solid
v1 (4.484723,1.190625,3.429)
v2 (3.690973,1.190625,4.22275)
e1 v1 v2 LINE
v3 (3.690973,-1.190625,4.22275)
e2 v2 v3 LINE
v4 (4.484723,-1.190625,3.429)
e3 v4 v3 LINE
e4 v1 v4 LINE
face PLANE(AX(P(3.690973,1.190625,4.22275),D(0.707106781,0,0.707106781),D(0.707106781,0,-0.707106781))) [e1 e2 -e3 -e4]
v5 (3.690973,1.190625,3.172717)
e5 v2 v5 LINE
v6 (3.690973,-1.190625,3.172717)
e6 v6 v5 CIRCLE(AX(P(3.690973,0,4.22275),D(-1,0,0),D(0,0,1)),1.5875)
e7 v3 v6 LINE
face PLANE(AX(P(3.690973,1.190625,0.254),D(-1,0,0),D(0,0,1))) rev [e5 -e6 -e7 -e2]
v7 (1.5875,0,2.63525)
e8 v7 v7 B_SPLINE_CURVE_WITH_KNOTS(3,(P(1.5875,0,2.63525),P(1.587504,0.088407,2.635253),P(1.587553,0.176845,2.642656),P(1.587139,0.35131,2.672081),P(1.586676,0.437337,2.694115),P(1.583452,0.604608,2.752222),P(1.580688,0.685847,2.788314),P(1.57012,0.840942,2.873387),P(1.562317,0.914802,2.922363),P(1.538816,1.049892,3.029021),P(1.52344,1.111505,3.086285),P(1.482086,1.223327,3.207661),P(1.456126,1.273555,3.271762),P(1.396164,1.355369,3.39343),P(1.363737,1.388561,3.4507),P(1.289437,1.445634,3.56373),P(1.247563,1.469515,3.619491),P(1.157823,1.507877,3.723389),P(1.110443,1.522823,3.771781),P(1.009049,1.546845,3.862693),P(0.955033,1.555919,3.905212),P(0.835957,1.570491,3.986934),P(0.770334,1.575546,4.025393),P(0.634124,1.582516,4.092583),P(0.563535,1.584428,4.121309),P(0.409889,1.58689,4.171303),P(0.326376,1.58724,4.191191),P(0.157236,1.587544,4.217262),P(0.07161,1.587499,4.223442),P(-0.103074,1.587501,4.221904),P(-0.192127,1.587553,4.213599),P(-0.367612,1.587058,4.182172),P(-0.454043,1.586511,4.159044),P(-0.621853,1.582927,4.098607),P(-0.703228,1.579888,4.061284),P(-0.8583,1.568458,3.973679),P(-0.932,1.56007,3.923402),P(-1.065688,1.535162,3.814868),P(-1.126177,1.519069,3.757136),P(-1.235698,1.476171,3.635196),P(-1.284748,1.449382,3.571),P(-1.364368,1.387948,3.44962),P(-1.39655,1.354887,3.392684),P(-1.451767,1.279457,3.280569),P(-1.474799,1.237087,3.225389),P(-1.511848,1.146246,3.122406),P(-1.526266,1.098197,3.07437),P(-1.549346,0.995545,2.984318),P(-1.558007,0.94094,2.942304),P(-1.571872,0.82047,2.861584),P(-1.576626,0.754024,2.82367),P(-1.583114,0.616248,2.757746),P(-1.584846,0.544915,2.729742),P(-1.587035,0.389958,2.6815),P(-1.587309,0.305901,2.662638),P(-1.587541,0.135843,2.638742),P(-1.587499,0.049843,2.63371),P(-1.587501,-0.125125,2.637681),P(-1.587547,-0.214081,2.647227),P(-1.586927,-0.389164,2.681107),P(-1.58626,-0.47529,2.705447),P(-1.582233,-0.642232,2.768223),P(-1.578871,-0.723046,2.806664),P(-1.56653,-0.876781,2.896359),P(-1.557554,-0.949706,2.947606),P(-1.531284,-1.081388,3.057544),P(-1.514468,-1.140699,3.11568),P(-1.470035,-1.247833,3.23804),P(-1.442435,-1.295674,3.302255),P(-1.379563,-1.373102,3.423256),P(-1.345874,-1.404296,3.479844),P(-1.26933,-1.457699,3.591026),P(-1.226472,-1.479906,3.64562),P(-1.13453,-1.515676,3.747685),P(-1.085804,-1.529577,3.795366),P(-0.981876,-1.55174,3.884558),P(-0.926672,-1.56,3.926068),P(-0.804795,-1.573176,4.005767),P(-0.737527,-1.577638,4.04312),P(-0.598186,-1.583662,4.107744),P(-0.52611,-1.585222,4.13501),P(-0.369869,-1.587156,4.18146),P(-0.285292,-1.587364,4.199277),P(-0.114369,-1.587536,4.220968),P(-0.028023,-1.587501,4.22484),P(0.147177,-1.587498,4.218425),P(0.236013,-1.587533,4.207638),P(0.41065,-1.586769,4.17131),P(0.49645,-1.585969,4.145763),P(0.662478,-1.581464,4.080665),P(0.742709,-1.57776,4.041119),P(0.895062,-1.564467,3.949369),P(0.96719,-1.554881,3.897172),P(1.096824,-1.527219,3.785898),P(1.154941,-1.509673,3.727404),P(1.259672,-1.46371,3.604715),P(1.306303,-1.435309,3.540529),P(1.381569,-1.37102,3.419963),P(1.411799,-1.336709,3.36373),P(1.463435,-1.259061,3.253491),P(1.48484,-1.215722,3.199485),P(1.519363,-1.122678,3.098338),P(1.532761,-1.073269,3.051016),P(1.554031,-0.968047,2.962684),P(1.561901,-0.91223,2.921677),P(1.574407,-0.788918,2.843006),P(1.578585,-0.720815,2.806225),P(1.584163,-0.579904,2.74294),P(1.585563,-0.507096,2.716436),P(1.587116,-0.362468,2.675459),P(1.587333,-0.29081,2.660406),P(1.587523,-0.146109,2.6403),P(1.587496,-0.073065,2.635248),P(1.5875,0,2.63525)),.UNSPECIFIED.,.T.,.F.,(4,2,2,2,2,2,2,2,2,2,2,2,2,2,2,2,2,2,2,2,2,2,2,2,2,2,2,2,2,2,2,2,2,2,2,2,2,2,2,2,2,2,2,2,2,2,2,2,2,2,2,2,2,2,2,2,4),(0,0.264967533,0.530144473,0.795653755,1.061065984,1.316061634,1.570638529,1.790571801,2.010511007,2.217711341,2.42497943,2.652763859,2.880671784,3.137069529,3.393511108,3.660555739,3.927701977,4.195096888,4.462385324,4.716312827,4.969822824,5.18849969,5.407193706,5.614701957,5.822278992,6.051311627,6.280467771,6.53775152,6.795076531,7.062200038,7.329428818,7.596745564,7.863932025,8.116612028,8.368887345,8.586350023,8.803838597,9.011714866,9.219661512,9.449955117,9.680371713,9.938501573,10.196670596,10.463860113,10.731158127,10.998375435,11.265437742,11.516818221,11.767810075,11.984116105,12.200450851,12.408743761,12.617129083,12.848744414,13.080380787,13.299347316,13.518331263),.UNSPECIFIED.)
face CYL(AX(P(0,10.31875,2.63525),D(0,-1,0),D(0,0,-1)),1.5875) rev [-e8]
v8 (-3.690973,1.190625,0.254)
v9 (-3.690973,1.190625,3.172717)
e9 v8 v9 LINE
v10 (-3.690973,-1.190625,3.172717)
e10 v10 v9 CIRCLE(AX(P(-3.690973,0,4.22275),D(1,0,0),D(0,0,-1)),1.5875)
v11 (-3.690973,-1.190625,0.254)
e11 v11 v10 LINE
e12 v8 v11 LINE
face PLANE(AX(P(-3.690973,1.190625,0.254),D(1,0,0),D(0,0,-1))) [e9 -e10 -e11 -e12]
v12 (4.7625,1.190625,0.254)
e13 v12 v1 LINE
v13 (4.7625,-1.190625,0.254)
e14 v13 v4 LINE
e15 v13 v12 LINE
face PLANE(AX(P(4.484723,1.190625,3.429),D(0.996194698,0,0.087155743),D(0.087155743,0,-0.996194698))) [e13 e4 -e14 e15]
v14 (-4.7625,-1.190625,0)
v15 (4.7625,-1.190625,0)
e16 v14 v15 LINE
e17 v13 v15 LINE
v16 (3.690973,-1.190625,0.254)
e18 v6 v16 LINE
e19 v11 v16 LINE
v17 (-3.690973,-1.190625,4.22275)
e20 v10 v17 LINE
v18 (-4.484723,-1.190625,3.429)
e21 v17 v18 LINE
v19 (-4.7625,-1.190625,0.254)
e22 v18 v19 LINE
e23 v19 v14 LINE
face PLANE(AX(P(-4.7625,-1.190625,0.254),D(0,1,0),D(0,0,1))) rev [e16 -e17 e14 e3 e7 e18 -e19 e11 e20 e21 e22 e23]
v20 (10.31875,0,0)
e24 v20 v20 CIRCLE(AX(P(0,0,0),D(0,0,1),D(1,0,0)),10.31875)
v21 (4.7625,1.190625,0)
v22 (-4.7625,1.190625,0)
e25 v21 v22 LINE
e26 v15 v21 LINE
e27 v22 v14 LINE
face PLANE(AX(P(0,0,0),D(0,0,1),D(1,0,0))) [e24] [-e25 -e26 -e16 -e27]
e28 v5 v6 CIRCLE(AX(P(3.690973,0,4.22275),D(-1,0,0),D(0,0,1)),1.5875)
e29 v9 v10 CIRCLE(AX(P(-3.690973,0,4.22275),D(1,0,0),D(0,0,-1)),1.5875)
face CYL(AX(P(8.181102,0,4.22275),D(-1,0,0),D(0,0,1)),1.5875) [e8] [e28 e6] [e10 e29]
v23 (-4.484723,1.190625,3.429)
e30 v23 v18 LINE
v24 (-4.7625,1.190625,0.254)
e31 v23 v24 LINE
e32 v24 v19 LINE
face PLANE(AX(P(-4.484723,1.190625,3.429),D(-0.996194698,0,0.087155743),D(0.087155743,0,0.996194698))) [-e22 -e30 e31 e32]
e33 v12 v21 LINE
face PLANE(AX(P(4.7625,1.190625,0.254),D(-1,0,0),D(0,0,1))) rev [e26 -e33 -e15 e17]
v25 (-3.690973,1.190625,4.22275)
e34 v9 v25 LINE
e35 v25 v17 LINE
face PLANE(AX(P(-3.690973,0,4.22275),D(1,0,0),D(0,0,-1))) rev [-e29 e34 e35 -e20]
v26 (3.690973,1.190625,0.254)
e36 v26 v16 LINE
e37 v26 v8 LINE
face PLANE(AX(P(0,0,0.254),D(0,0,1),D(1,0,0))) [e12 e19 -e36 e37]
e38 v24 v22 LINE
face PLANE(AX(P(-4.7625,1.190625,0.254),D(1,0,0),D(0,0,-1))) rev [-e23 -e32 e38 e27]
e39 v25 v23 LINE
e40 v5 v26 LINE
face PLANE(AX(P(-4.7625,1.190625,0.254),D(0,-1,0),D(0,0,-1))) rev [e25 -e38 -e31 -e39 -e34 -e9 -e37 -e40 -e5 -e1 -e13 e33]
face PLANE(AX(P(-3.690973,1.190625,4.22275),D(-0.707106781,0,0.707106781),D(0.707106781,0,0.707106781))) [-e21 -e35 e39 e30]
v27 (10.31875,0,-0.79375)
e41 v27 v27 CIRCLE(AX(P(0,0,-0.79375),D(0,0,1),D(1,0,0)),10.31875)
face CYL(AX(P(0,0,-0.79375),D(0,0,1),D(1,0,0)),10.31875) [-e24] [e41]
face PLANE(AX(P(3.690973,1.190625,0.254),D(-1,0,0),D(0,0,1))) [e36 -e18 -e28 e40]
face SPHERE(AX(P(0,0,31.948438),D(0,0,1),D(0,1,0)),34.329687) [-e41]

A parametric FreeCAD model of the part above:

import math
import FreeCAD as App
import Part
import Sketcher
Q = App.Units.Quantity


def add_polygon(sketch, points):
    """Adds a closed chain of lines whose ends are joined by coincident constraints."""
    first, n = sketch.GeometryCount, len(points)
    for a, b in zip(points, points[1:] + points[:1]):
        sketch.addGeometry(Part.LineSegment(App.Vector(*a, 0), App.Vector(*b, 0)), False)
    for i in range(n):
        sketch.addConstraint(Sketcher.Constraint("Coincident", first + i, 2, first + (i + 1) % n, 1))

doc = App.newDocument("Part")
body = doc.addObject("PartDesign::Body", "Body")

sketch1 = body.newObject("Sketcher::SketchObject", "Sketch")
sketch1.AttachmentSupport = (doc.getObject("XY_Plane"), [""])
sketch1.MapMode = "FlatFace"
sketch1.addGeometry(Part.Circle(App.Vector(0, 0, 0), App.Vector(0, 0, 1), 10.31875), False)
sketch1.addConstraint(Sketcher.Constraint("Coincident", 0, 3, -1, 1))
sketch1.addConstraint(Sketcher.Constraint("Diameter", 0, Q("0.8125 in")))
pad1 = body.newObject("PartDesign::Pad", "Pad")
pad1.Profile = sketch1
pad1.Length = Q("0.03125 in")
pad1.Reversed = True

sketch2 = body.newObject("Sketcher::SketchObject", "Sketch001")
sketch2.AttachmentSupport = (doc.getObject("YZ_Plane"), [""])
sketch2.MapMode = "FlatFace"
sketch2.addGeometry(Part.LineSegment(App.Vector(10.31875, -0.79375, 0), App.Vector(0, -0.79375, 0)), False)
sketch2.addGeometry(Part.LineSegment(App.Vector(0, -0.79375, 0), App.Vector(0, -2.38125, 0)), False)
sketch2.addGeometry(Part.ArcOfCircle(Part.Circle(App.Vector(0, 31.948438, 0), App.Vector(0, 0, 1), 34.329688), math.radians(-90), math.radians(-72.507675)), False)
sketch2.addConstraint(Sketcher.Constraint("Coincident", 0, 2, 1, 1))
sketch2.addConstraint(Sketcher.Constraint("Coincident", 1, 2, 2, 1))
sketch2.addConstraint(Sketcher.Constraint("Coincident", 2, 2, 0, 1))
sketch2.addConstraint(Sketcher.Constraint("Horizontal", 0))
sketch2.addConstraint(Sketcher.Constraint("Vertical", 1))
sketch2.addConstraint(Sketcher.Constraint("PointOnObject", 2, 3, -2))
sketch2.addConstraint(Sketcher.Constraint("PointOnObject", 0, 2, -2))
sketch2.addConstraint(Sketcher.Constraint("DistanceX", 0, 2, 0, 1, Q("0.40625 in")))
sketch2.addConstraint(Sketcher.Constraint("DistanceY", 1, 2, 1, 1, Q("0.0625 in")))
sketch2.addConstraint(Sketcher.Constraint("DistanceY", 0, 2, -1, 1, Q("0.03125 in")))
revolution = body.newObject("PartDesign::Revolution", "Revolution")
revolution.Profile = sketch2
revolution.ReferenceAxis = (sketch2, ["V_Axis"])
revolution.Angle = 360

sketch3 = body.newObject("Sketcher::SketchObject", "Sketch002")
sketch3.AttachmentSupport = (doc.getObject("XY_Plane"), [""])
sketch3.MapMode = "FlatFace"
add_polygon(sketch3, [(-4.7625, 1.190625), (-4.7625, -1.190625), (4.7625, -1.190625), (4.7625, 1.190625)])
sketch3.addConstraint(Sketcher.Constraint("Vertical", 0))
sketch3.addConstraint(Sketcher.Constraint("Horizontal", 1))
sketch3.addConstraint(Sketcher.Constraint("Vertical", 2))
sketch3.addConstraint(Sketcher.Constraint("Horizontal", 3))
sketch3.addConstraint(Sketcher.Constraint("Symmetric", 0, 2, 2, 2, -1, 1))
sketch3.addConstraint(Sketcher.Constraint("DistanceX", 1, 1, 1, 2, Q("0.375 in")))
sketch3.addConstraint(Sketcher.Constraint("DistanceY", 0, 2, 0, 1, Q("0.09375 in")))
pad2 = body.newObject("PartDesign::Pad", "Pad001")
pad2.Profile = sketch3
pad2.Length = Q("0.01 in")

sketch4 = body.newObject("Sketcher::SketchObject", "Sketch003")
sketch4.AttachmentSupport = (doc.getObject("XZ_Plane"), [""])
sketch4.MapMode = "FlatFace"
sketch4.AttachmentOffset = App.Placement(App.Vector(0, 0, 0.046875 * 25.4), App.Rotation())
add_polygon(sketch4, [(-4.7625, 0.254), (-3.690973, 0.254), (-3.690973, 4.22275), (-4.484723, 3.429)])
add_polygon(sketch4, [(3.690973, 0.254), (4.7625, 0.254), (4.484723, 3.429), (3.690973, 4.22275)])
sketch4.addConstraint(Sketcher.Constraint("Horizontal", 0))
sketch4.addConstraint(Sketcher.Constraint("Vertical", 1))
sketch4.addConstraint(Sketcher.Constraint("Horizontal", 4))
sketch4.addConstraint(Sketcher.Constraint("Vertical", 7))
sketch4.addConstraint(Sketcher.Constraint("Symmetric", 3, 2, 4, 2, -2))
sketch4.addConstraint(Sketcher.Constraint("Symmetric", 2, 2, 5, 2, -2))
sketch4.addConstraint(Sketcher.Constraint("Symmetric", 1, 2, 6, 2, -2))
sketch4.addConstraint(Sketcher.Constraint("Perpendicular", 2, 6))
sketch4.addConstraint(Sketcher.Constraint("Angle", 3, Q("-95 deg")))
sketch4.addConstraint(Sketcher.Constraint("DistanceY", 1, 1, 1, 2, Q("0.15625 in")))
sketch4.addConstraint(Sketcher.Constraint("DistanceY", -1, 1, 0, 2, Q("0.01 in")))
sketch4.addConstraint(Sketcher.Constraint("DistanceY", -1, 1, 2, 2, Q("0.135 in")))
sketch4.addConstraint(Sketcher.Constraint("DistanceX", 3, 2, -1, 1, Q("0.1875 in")))
pad3 = body.newObject("PartDesign::Pad", "Pad002")
pad3.Profile = sketch4
pad3.Length = Q("0.09375 in")
pad3.Reversed = True

sketch5 = body.newObject("Sketcher::SketchObject", "Sketch004")
sketch5.AttachmentSupport = (doc.getObject("YZ_Plane"), [""])
sketch5.MapMode = "FlatFace"
sketch5.AttachmentOffset = App.Placement(App.Vector(0, 0, -3.690973), App.Rotation())
sketch5.addGeometry(Part.Circle(App.Vector(0, 4.22275, 0), App.Vector(0, 0, 1), 1.5875), False)
sketch5.addConstraint(Sketcher.Constraint("PointOnObject", 0, 3, -2))
sketch5.addConstraint(Sketcher.Constraint("Diameter", 0, Q("0.125 in")))
sketch5.addConstraint(Sketcher.Constraint("DistanceY", -1, 1, 0, 3, 4.22275))
pad4 = body.newObject("PartDesign::Pad", "Pad003")
pad4.Profile = sketch5
pad4.Length = 7.381947

sketch6 = body.newObject("Sketcher::SketchObject", "Sketch005")
sketch6.AttachmentSupport = (doc.getObject("XZ_Plane"), [""])
sketch6.MapMode = "FlatFace"
sketch6.AttachmentOffset = App.Placement(App.Vector(0, 0, 0.046875 * 25.4), App.Rotation())
sketch6.addGeometry(Part.Circle(App.Vector(0, 2.63525, 0), App.Vector(0, 0, 1), 1.5875), False)
sketch6.addConstraint(Sketcher.Constraint("PointOnObject", 0, 3, -2))
sketch6.addConstraint(Sketcher.Constraint("Diameter", 0, Q("0.125 in")))
sketch6.addConstraint(Sketcher.Constraint("DistanceY", -1, 1, 0, 3, 2.63525))
pocket1 = body.newObject("PartDesign::Pocket", "Pocket")
pocket1.Profile = sketch6
pocket1.Type = "ThroughAll"
pocket1.Midplane = True

doc.recompute()
